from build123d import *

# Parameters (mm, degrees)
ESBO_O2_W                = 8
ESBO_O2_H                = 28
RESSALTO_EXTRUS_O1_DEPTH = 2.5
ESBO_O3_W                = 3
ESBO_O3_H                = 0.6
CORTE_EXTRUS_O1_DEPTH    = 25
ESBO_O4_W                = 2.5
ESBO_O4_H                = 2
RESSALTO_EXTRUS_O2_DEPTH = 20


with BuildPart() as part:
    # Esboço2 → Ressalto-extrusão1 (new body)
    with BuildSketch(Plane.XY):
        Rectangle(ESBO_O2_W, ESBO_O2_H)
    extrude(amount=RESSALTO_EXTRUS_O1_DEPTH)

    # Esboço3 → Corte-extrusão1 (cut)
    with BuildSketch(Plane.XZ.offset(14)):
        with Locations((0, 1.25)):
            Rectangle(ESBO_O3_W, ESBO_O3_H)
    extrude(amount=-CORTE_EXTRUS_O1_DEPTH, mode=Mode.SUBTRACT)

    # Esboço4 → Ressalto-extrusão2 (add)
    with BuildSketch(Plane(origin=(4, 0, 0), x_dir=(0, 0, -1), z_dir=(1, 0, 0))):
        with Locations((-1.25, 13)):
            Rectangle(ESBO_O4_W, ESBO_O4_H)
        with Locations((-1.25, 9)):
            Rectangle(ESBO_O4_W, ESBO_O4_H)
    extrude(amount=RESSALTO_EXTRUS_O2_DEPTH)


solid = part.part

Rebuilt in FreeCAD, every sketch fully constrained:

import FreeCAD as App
import Part
import Sketcher

V = App.Vector

doc = App.newDocument("Part")
body = doc.addObject("PartDesign::Body", "Body")

sketch1 = doc.addObject("Sketcher::SketchObject", "Sketch")
body.addObject(sketch1)
sketch1.AttachmentSupport = (doc.XY_Plane, [""])
sketch1.MapMode = "FlatFace"
sketch1.addGeometry([
    Part.LineSegment(V(-4, 14, 0), V(-4, -14, 0)),
    Part.LineSegment(V(-4, -14, 0), V(4, -14, 0)),
    Part.LineSegment(V(4, -14, 0), V(4, 14, 0)),
    Part.LineSegment(V(4, 14, 0), V(-4, 14, 0)),
], False)
sketch1.addConstraint([
    Sketcher.Constraint("Coincident", 0, 2, 1, 1),
    Sketcher.Constraint("Coincident", 1, 2, 2, 1),
    Sketcher.Constraint("Coincident", 2, 2, 3, 1),
    Sketcher.Constraint("Coincident", 3, 2, 0, 1),
    Sketcher.Constraint("Vertical", 0),
    Sketcher.Constraint("Horizontal", 1),
    Sketcher.Constraint("Vertical", 2),
    Sketcher.Constraint("Horizontal", 3),
    Sketcher.Constraint("Symmetric", 0, 2, 2, 2, -1, 1),
    Sketcher.Constraint("DistanceX", 1, 1, 1, 2, 8.0),
    Sketcher.Constraint("DistanceY", 0, 2, 0, 1, 28.0),
])
pad1 = doc.addObject("PartDesign::Pad", "Pad")
body.addObject(pad1)
pad1.Profile = sketch1
pad1.Length = 2.5

sketch2 = doc.addObject("Sketcher::SketchObject", "Sketch001")
body.addObject(sketch2)
sketch2.AttachmentSupport = (doc.XZ_Plane, [""])
sketch2.MapMode = "FlatFace"
sketch2.AttachmentOffset = App.Placement(V(0, 0, 14), App.Rotation())
sketch2.addGeometry([
    Part.LineSegment(V(-1.5, 1.6, 0), V(-1.5, 0.9, 0)),
    Part.LineSegment(V(-1.5, 0.9, 0), V(1.5, 0.9, 0)),
    Part.LineSegment(V(1.5, 0.9, 0), V(1.5, 1.6, 0)),
    Part.LineSegment(V(1.5, 1.6, 0), V(-1.5, 1.6, 0)),
], False)
sketch2.addConstraint([
    Sketcher.Constraint("Coincident", 0, 2, 1, 1),
    Sketcher.Constraint("Coincident", 1, 2, 2, 1),
    Sketcher.Constraint("Coincident", 2, 2, 3, 1),
    Sketcher.Constraint("Coincident", 3, 2, 0, 1),
    Sketcher.Constraint("Vertical", 0),
    Sketcher.Constraint("Horizontal", 1),
    Sketcher.Constraint("Vertical", 2),
    Sketcher.Constraint("Horizontal", 3),
    Sketcher.Constraint("DistanceX", 1, 1, 1, 2, 3.0),
    Sketcher.Constraint("DistanceY", 0, 2, 0, 1, 0.6),
    Sketcher.Constraint("DistanceX", 0, 2, -1, 1, 1.5),
    Sketcher.Constraint("DistanceY", -1, 1, 0, 2, 0.95),
])
pocket1 = doc.addObject("PartDesign::Pocket", "Pocket")
body.addObject(pocket1)
pocket1.Profile = sketch2
pocket1.Length = 25

sketch3 = doc.addObject("Sketcher::SketchObject", "Sketch002")
body.addObject(sketch3)
sketch3.AttachmentSupport = (doc.YZ_Plane, [""])
sketch3.MapMode = "FlatFace"
sketch3.AttachmentOffset = App.Placement(V(0, 0, 4), App.Rotation())
sketch3.addGeometry([
    Part.LineSegment(V(14, 2.5, 0), V(12, 2.5, 0)),
    Part.LineSegment(V(12, 2.5, 0), V(12, 0, 0)),
    Part.LineSegment(V(12, 0, 0), V(14, 0, 0)),
    Part.LineSegment(V(14, 0, 0), V(14, 2.5, 0)),
    Part.LineSegment(V(10, 2.5, 0), V(8, 2.5, 0)),
    Part.LineSegment(V(8, 2.5, 0), V(8, 0, 0)),
    Part.LineSegment(V(8, 0, 0), V(10, 0, 0)),
    Part.LineSegment(V(10, 0, 0), V(10, 2.5, 0)),
], False)
sketch3.addConstraint([
    Sketcher.Constraint("Coincident", 0, 2, 1, 1),
    Sketcher.Constraint("Coincident", 1, 2, 2, 1),
    Sketcher.Constraint("Coincident", 2, 2, 3, 1),
    Sketcher.Constraint("Coincident", 3, 2, 0, 1),
    Sketcher.Constraint("Coincident", 4, 2, 5, 1),
    Sketcher.Constraint("Coincident", 5, 2, 6, 1),
    Sketcher.Constraint("Coincident", 6, 2, 7, 1),
    Sketcher.Constraint("Coincident", 7, 2, 4, 1),
    Sketcher.Constraint("Horizontal", 0),
    Sketcher.Constraint("Vertical", 1),
    Sketcher.Constraint("Horizontal", 2),
    Sketcher.Constraint("Vertical", 3),
    Sketcher.Constraint("Horizontal", 4),
    Sketcher.Constraint("Vertical", 5),
    Sketcher.Constraint("Horizontal", 6),
    Sketcher.Constraint("Vertical", 7),
    Sketcher.Constraint("PointOnObject", 1, 2, -1),
    Sketcher.Constraint("PointOnObject", 5, 2, -1),
    Sketcher.Constraint("Horizontal", 3, 2, 4, 2),
    Sketcher.Constraint("Equal", 2, 4),
    Sketcher.Constraint("DistanceX", 0, 2, 0, 1, 2.0),
    Sketcher.Constraint("DistanceY", 1, 2, 1, 1, 2.5),
    Sketcher.Constraint("DistanceX", -1, 1, 0, 2, 12.0),
    Sketcher.Constraint("DistanceX", -1, 1, 4, 2, 8.0),
])
pad2 = doc.addObject("PartDesign::Pad", "Pad001")
body.addObject(pad2)
pad2.Profile = sketch3
pad2.Length = 20

doc.recompute()
